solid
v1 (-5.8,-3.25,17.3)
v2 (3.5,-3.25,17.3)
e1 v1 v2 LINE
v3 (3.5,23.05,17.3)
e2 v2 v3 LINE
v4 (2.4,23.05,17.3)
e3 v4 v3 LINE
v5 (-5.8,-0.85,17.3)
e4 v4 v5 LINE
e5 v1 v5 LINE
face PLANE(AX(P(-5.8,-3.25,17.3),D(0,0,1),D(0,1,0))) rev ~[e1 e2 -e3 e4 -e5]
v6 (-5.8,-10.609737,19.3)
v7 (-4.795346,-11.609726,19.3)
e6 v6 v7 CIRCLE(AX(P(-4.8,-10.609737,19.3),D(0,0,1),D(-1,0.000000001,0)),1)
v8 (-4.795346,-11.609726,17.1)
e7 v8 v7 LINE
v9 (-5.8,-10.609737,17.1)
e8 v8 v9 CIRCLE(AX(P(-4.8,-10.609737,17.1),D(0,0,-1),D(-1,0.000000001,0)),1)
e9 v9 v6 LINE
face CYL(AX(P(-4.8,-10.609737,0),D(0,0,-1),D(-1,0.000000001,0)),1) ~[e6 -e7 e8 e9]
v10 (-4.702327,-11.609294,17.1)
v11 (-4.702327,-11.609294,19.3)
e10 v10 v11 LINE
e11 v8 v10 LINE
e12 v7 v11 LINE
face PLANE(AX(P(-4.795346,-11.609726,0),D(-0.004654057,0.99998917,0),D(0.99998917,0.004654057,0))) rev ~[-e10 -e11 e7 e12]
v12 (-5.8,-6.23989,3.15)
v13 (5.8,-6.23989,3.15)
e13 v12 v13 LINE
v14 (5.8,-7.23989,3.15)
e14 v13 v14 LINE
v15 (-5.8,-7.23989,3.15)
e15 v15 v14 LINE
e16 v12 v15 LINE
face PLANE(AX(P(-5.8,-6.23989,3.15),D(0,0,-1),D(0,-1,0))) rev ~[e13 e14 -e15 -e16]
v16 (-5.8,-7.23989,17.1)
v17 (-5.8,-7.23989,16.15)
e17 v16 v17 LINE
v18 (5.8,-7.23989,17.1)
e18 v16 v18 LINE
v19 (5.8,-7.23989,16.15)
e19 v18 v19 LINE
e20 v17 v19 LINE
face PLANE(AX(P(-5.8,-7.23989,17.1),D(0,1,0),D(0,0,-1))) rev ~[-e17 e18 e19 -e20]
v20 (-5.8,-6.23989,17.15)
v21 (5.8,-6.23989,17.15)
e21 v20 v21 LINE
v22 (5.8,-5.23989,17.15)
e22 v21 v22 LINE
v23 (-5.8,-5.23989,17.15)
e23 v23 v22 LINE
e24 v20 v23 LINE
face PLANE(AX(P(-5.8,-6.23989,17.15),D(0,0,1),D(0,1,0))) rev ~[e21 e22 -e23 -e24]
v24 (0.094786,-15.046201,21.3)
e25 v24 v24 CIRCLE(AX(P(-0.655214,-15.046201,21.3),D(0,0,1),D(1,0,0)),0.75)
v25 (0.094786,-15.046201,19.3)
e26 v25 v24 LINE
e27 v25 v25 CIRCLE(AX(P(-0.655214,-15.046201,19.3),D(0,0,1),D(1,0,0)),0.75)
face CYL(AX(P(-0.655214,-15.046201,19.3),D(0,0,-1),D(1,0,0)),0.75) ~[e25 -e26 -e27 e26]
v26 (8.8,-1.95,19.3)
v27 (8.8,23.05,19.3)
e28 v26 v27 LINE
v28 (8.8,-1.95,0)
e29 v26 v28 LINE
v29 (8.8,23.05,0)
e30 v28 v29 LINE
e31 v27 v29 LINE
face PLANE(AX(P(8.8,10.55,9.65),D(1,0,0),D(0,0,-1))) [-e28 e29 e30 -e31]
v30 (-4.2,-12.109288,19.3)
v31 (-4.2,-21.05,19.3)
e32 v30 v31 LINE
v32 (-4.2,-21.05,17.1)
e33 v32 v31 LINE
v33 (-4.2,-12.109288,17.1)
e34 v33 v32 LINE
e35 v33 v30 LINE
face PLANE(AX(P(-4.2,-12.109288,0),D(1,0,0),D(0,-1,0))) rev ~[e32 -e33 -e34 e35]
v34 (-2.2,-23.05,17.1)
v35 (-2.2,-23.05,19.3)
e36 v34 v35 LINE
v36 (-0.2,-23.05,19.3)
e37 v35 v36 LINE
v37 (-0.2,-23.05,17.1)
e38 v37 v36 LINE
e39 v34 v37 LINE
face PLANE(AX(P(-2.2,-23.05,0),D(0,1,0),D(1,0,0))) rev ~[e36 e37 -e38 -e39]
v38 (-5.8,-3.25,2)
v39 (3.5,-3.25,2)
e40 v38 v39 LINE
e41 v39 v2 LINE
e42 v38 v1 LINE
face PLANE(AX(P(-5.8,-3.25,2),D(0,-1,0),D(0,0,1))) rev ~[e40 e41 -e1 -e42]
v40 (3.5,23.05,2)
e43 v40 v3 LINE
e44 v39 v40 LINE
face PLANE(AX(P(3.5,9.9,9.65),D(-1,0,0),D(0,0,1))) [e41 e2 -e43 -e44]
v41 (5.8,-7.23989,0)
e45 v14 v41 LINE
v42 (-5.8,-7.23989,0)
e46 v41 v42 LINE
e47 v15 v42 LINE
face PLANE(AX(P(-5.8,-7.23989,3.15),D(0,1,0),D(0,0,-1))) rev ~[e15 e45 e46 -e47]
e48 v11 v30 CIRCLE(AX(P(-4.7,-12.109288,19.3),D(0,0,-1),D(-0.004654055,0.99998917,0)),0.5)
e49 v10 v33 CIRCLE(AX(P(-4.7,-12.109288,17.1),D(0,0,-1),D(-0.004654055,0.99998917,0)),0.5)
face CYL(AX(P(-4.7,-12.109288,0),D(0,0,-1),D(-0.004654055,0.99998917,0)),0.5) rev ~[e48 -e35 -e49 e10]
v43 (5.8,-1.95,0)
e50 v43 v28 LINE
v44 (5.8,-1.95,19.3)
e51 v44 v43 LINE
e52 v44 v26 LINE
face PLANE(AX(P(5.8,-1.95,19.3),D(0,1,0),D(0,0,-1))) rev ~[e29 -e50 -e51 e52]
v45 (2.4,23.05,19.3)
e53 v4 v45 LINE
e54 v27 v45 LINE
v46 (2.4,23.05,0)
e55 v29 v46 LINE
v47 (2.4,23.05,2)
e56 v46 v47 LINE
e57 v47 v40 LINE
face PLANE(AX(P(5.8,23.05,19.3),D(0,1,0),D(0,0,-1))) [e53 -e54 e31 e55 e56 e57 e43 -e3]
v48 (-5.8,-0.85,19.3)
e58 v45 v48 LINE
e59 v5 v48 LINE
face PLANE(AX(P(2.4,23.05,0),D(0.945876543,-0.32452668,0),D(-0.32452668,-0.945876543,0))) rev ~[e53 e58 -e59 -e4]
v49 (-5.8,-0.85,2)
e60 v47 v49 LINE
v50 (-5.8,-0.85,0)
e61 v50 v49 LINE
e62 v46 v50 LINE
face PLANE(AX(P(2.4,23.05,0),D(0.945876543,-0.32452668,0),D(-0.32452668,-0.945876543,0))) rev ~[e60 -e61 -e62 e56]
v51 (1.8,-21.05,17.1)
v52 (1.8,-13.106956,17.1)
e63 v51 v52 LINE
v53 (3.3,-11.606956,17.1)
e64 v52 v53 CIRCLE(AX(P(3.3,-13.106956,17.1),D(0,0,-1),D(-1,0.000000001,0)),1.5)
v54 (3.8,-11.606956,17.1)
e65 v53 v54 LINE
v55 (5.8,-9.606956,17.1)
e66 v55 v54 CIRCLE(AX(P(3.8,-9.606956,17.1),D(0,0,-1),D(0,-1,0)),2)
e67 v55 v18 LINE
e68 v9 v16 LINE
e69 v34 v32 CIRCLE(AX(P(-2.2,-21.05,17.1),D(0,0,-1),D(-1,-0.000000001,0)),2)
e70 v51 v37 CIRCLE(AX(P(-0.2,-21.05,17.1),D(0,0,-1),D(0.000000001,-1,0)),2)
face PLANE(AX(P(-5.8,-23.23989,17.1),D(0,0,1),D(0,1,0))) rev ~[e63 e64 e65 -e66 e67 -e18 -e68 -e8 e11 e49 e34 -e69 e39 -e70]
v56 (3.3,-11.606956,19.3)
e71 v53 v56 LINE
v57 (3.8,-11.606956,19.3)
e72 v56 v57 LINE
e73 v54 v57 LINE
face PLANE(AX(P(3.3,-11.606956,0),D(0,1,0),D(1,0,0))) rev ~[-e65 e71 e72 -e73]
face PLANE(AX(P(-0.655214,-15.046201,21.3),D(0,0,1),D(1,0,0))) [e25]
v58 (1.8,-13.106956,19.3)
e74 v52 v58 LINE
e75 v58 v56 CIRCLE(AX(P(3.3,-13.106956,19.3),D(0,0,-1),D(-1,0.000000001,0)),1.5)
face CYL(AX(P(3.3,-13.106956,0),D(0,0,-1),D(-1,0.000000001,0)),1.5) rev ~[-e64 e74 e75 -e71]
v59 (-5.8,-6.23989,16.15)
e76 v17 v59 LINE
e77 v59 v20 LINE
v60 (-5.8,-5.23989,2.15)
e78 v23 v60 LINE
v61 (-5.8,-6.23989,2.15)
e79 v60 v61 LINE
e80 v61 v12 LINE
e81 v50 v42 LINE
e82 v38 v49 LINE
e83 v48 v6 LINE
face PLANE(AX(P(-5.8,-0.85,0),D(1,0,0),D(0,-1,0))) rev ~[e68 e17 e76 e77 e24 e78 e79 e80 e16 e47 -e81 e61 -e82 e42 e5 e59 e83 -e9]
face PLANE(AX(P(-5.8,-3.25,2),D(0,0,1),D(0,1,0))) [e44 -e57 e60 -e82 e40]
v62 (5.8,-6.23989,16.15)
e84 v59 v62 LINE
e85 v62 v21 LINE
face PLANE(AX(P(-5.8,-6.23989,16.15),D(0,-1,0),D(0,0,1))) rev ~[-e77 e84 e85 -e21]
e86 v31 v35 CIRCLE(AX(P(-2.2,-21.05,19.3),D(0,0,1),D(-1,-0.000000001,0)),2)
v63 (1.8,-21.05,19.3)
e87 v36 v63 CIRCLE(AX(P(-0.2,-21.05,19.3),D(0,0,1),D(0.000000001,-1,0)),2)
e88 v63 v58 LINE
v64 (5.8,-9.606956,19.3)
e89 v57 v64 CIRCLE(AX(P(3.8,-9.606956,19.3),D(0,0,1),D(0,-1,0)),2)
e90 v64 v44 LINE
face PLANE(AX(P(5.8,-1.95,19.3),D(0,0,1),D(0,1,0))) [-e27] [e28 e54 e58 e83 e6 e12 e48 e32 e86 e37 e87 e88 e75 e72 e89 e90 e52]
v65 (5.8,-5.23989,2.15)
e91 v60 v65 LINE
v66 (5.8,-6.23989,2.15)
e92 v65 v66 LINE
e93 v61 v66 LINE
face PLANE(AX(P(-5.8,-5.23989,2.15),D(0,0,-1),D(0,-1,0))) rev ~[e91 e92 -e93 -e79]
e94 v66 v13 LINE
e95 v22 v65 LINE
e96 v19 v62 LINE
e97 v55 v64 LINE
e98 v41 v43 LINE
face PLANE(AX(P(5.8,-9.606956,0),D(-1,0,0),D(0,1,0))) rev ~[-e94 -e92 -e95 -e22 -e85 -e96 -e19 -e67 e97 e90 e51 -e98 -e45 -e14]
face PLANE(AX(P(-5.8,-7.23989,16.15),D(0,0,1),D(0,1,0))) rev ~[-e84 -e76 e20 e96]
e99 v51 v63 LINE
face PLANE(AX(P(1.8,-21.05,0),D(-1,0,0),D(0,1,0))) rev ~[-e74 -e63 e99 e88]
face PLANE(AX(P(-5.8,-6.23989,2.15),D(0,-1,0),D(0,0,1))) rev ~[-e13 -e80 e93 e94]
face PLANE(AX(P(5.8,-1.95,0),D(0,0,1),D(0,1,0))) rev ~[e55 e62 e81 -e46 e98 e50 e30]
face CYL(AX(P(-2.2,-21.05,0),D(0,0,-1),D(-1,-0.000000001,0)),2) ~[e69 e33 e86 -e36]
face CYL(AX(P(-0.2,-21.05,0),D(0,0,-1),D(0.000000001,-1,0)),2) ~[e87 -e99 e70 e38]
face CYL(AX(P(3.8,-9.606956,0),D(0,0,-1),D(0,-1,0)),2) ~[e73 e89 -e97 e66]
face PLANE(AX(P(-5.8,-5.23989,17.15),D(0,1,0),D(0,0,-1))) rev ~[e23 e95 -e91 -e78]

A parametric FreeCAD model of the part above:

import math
import FreeCAD as App
import Part
import Sketcher

V = App.Vector


def add_polygon(sketch, points):
    """Adds a closed chain of lines whose ends are joined by coincident constraints."""
    first, n = sketch.GeometryCount, len(points)
    for a, b in zip(points, points[1:] + points[:1]):
        sketch.addGeometry(Part.LineSegment(App.Vector(*a, 0), App.Vector(*b, 0)), False)
    for i in range(n):
        sketch.addConstraint(Sketcher.Constraint("Coincident", first + i, 2, first + (i + 1) % n, 1))

doc = App.newDocument("Part")
params = doc.addObject("Spreadsheet::Sheet", "Params")
for row, (alias, value) in enumerate([
    ("sketch1_radius", "1 mm"),
    ("sketch1_radius2", "2 mm"),
    ("sketch1_radius3", "0.5 mm"),
    ("sketch1_radius4", "1.5 mm"),
    ("sketch1_width", "2 mm"),
    ("pad1_length", "19.3 mm"),
    ("sketch2_width", "26.3 mm"),
    ("sketch2_height", "15.3 mm"),
    ("pocket1_length", "9.3 mm"),
    ("sketch3_width", "1 mm"),
    ("sketch3_width2", "16 mm"),
    ("sketch3_height", "15 mm"),
    ("sketch3_height2", "3.2 mm"),
    ("sketch3_height3", "17.15 mm"),
    ("pocket2_length", "12.3 mm"),
    ("sketch4_diameter", "1.5 mm"),
    ("pad2_length", "2 mm"),
    ("sketch5_width", "25 mm"),
    ("sketch5_height", "19.3 mm"),
    ("pad3_length", "3 mm"),
], start=1):
    params.set(f"A{row}", alias)
    params.set(f"B{row}", "=" + value)
    params.setAlias(f"B{row}", alias)

body = doc.addObject("PartDesign::Body", "Body")

# Sketch on XY plane
sketch1 = body.newObject("Sketcher::SketchObject", "Sketch")
sketch1.AttachmentSupport = (doc.getObject("XY_Plane"), [""])
sketch1.MapMode = "FlatFace"
sketch1.addGeometry(Part.LineSegment(V(5.8, 23.05, 0), V(2.4, 23.05, 0)), False)
sketch1.addGeometry(Part.LineSegment(V(2.4, 23.05, 0), V(-5.8, -0.85, 0)), False)
sketch1.addGeometry(Part.LineSegment(V(-5.8, -0.85, 0), V(-5.8, -10.609737, 0)), False)
sketch1.addGeometry(Part.ArcOfCircle(Part.Circle(V(-4.8, -10.609737, 0), V(0, 0, 1), 1), math.radians(180), math.radians(270.266659)), False)
sketch1.addGeometry(Part.LineSegment(V(-4.795346, -11.609726, 0), V(-4.702327, -11.609294, 0)), False)
sketch1.addGeometry(Part.ArcOfCircle(Part.Circle(V(-4.7, -12.109288, 0), V(0, 0, 1), 0.5), math.radians(0), math.radians(90.266659)), False)
sketch1.addGeometry(Part.LineSegment(V(-4.2, -12.109288, 0), V(-4.2, -21.05, 0)), False)
sketch1.addGeometry(Part.ArcOfCircle(Part.Circle(V(-2.2, -21.05, 0), V(0, 0, 1), 2), math.radians(-180), math.radians(-90)), False)
sketch1.addGeometry(Part.LineSegment(V(-2.2, -23.05, 0), V(-0.2, -23.05, 0)), False)
sketch1.addGeometry(Part.ArcOfCircle(Part.Circle(V(-0.2, -21.05, 0), V(0, 0, 1), 2), math.radians(-90), math.radians(0)), False)
sketch1.addGeometry(Part.LineSegment(V(1.8, -21.05, 0), V(1.8, -13.106956, 0)), False)
sketch1.addGeometry(Part.ArcOfCircle(Part.Circle(V(3.3, -13.106956, 0), V(0, 0, 1), 1.5), math.radians(90), math.radians(180)), False)
sketch1.addGeometry(Part.LineSegment(V(3.3, -11.606956, 0), V(3.8, -11.606956, 0)), False)
sketch1.addGeometry(Part.ArcOfCircle(Part.Circle(V(3.8, -9.606956, 0), V(0, 0, 1), 2), math.radians(-90), math.radians(0)), False)
sketch1.addGeometry(Part.LineSegment(V(5.8, -9.606956, 0), V(5.8, 23.05, 0)), False)
sketch1.addConstraint(Sketcher.Constraint("Coincident", 0, 2, 1, 1))
sketch1.addConstraint(Sketcher.Constraint("Coincident", 1, 2, 2, 1))
sketch1.addConstraint(Sketcher.Constraint("Tangent", 2, 2, 3, 1))
sketch1.addConstraint(Sketcher.Constraint("Tangent", 3, 2, 4, 1))
sketch1.addConstraint(Sketcher.Constraint("Tangent", 4, 2, 5, 2))
sketch1.addConstraint(Sketcher.Constraint("Tangent", 5, 1, 6, 1))
sketch1.addConstraint(Sketcher.Constraint("Tangent", 6, 2, 7, 1))
sketch1.addConstraint(Sketcher.Constraint("Tangent", 7, 2, 8, 1))
sketch1.addConstraint(Sketcher.Constraint("Tangent", 8, 2, 9, 1))
sketch1.addConstraint(Sketcher.Constraint("Tangent", 9, 2, 10, 1))
sketch1.addConstraint(Sketcher.Constraint("Tangent", 10, 2, 11, 2))
sketch1.addConstraint(Sketcher.Constraint("Tangent", 11, 1, 12, 1))
sketch1.addConstraint(Sketcher.Constraint("Tangent", 12, 2, 13, 1))
sketch1.addConstraint(Sketcher.Constraint("Tangent", 13, 2, 14, 1))
sketch1.addConstraint(Sketcher.Constraint("Coincident", 14, 2, 0, 1))
sketch1.addConstraint(Sketcher.Constraint("Horizontal", 0))
sketch1.addConstraint(Sketcher.Constraint("Vertical", 2))
sketch1.addConstraint(Sketcher.Constraint("Vertical", 6))
sketch1.addConstraint(Sketcher.Constraint("Horizontal", 8))
sketch1.addConstraint(Sketcher.Constraint("Vertical", 10))
sketch1.addConstraint(Sketcher.Constraint("Horizontal", 12))
sketch1.addConstraint(Sketcher.Constraint("Vertical", 14))
sketch1.addConstraint(Sketcher.Constraint("Equal", 7, 9))
sketch1.addConstraint(Sketcher.Constraint("Equal", 9, 13))
sketch1.addConstraint(Sketcher.Constraint("Radius", 3, 1.0))
sketch1.addConstraint(Sketcher.Constraint("Radius", 7, 2.0))
sketch1.addConstraint(Sketcher.Constraint("Radius", 5, 0.5))
sketch1.addConstraint(Sketcher.Constraint("Radius", 11, 1.5))
sketch1.addConstraint(Sketcher.Constraint("DistanceX", 8, 1, 8, 2, 2.0))
sketch1.addConstraint(Sketcher.Constraint("DistanceX", 0, 2, 0, 1, 3.4))
sketch1.addConstraint(Sketcher.Constraint("DistanceX", 12, 1, 12, 2, 0.5))
sketch1.addConstraint(Sketcher.Constraint("DistanceX", 3, 3, -1, 1, 4.8))
sketch1.addConstraint(Sketcher.Constraint("DistanceX", 5, 3, -1, 1, 4.7))
sketch1.addConstraint(Sketcher.Constraint("DistanceY", 9, 3, 0, 2, 44.1))
sketch1.addConstraint(Sketcher.Constraint("DistanceY", 7, 3, 1, 2, 20.2))
sketch1.addConstraint(Sketcher.Constraint("DistanceY", 7, 3, -1, 1, 21.05))
sketch1.addConstraint(Sketcher.Constraint("DistanceY", 6, 2, 6, 1, 8.940712))
sketch1.addConstraint(Sketcher.Constraint("Distance", 4, 0.09302))
sketch1.addConstraint(Sketcher.Constraint("DistanceY", 10, 1, 10, 2, 7.943044))
sketch1.setExpression("Constraints[24]", "Params.sketch1_radius")
sketch1.setExpression("Constraints[25]", "Params.sketch1_radius2")
sketch1.setExpression("Constraints[26]", "Params.sketch1_radius3")
sketch1.setExpression("Constraints[27]", "Params.sketch1_radius4")
sketch1.setExpression("Constraints[28]", "Params.sketch1_width")
pad1 = body.newObject("PartDesign::Pad", "Pad")
pad1.Profile = sketch1
pad1.setExpression("Length", "Params.pad1_length")

# Sketch on YZ plane
sketch2 = body.newObject("Sketcher::SketchObject", "Sketch001")
sketch2.AttachmentSupport = (doc.getObject("YZ_Plane"), [""])
sketch2.MapMode = "FlatFace"
sketch2.AttachmentOffset = App.Placement(V(0, 0, -5.8), App.Rotation())
add_polygon(sketch2, [(23.05, 2), (-3.25, 2), (-3.25, 17.3), (23.05, 17.3)])  # lines 0-3
sketch2.addConstraint(Sketcher.Constraint("Horizontal", 0))
sketch2.addConstraint(Sketcher.Constraint("Vertical", 1))
sketch2.addConstraint(Sketcher.Constraint("Horizontal", 2))
sketch2.addConstraint(Sketcher.Constraint("Vertical", 3))
sketch2.addConstraint(Sketcher.Constraint("DistanceX", 0, 2, 0, 1, 26.3))
sketch2.addConstraint(Sketcher.Constraint("DistanceY", 1, 1, 1, 2, 15.3))
sketch2.addConstraint(Sketcher.Constraint("DistanceY", -1, 1, 0, 2, 2.0))
sketch2.addConstraint(Sketcher.Constraint("DistanceX", 0, 2, -1, 1, 3.25))
sketch2.setExpression("Constraints[8]", "Params.sketch2_width")
sketch2.setExpression("Constraints[9]", "Params.sketch2_height")
pocket1 = body.newObject("PartDesign::Pocket", "Pocket")
pocket1.Profile = sketch2
pocket1.setExpression("Length", "Params.pocket1_length")
pocket1.Reversed = True

# Sketch on YZ plane
sketch3 = body.newObject("Sketcher::SketchObject", "Sketch002")
sketch3.AttachmentSupport = (doc.getObject("YZ_Plane"), [""])
sketch3.MapMode = "FlatFace"
sketch3.AttachmentOffset = App.Placement(V(0, 0, -5.8), App.Rotation())
add_polygon(sketch3, [(-5.23989, 2.15), (-6.23989, 2.15), (-6.23989, 3.15), (-7.23989, 3.15), (-7.23989, -0.05), (-23.23989, -0.05), (-23.23989, 17.1), (-7.23989, 17.1), (-7.23989, 16.15), (-6.23989, 16.15), (-6.23989, 17.15), (-5.23989, 17.15)])  # lines 0-11
sketch3.addConstraint(Sketcher.Constraint("Horizontal", 0))
sketch3.addConstraint(Sketcher.Constraint("Vertical", 1))
sketch3.addConstraint(Sketcher.Constraint("Horizontal", 2))
sketch3.addConstraint(Sketcher.Constraint("Vertical", 3))
sketch3.addConstraint(Sketcher.Constraint("Horizontal", 4))
sketch3.addConstraint(Sketcher.Constraint("Vertical", 5))
sketch3.addConstraint(Sketcher.Constraint("Horizontal", 6))
sketch3.addConstraint(Sketcher.Constraint("Vertical", 7))
sketch3.addConstraint(Sketcher.Constraint("Horizontal", 8))
sketch3.addConstraint(Sketcher.Constraint("Vertical", 9))
sketch3.addConstraint(Sketcher.Constraint("Horizontal", 10))
sketch3.addConstraint(Sketcher.Constraint("Vertical", 11))
sketch3.addConstraint(Sketcher.Constraint("Vertical", 3, 2, 6, 2))
sketch3.addConstraint(Sketcher.Constraint("Vertical", 1, 2, 8, 2))
sketch3.addConstraint(Sketcher.Constraint("Equal", 0, 2))
sketch3.addConstraint(Sketcher.Constraint("Equal", 10, 1))
sketch3.addConstraint(Sketcher.Constraint("Equal", 1, 9))
sketch3.addConstraint(Sketcher.Constraint("DistanceX", 0, 2, 0, 1, 1.0))
sketch3.addConstraint(Sketcher.Constraint("DistanceX", 4, 2, 4, 1, 16.0))
sketch3.addConstraint(Sketcher.Constraint("DistanceY", 11, 2, 11, 1, 15.0))
sketch3.addConstraint(Sketcher.Constraint("DistanceY", 3, 2, 3, 1, 3.2))
sketch3.addConstraint(Sketcher.Constraint("DistanceY", 5, 1, 5, 2, 17.15))
sketch3.addConstraint(Sketcher.Constraint("DistanceY", -1, 1, 5, 2, 17.1))
sketch3.addConstraint(Sketcher.Constraint("DistanceX", 0, 2, -1, 1, 6.23989))
sketch3.setExpression("Constraints[29]", "Params.sketch3_width")
sketch3.setExpression("Constraints[30]", "Params.sketch3_width2")
sketch3.setExpression("Constraints[31]", "Params.sketch3_height")
sketch3.setExpression("Constraints[32]", "Params.sketch3_height2")
sketch3.setExpression("Constraints[33]", "Params.sketch3_height3")
pocket2 = body.newObject("PartDesign::Pocket", "Pocket001")
pocket2.Profile = sketch3
pocket2.setExpression("Length", "Params.pocket2_length")
pocket2.Reversed = True

# Sketch on XY plane
sketch4 = body.newObject("Sketcher::SketchObject", "Sketch003")
sketch4.AttachmentSupport = (doc.getObject("XY_Plane"), [""])
sketch4.MapMode = "FlatFace"
sketch4.AttachmentOffset = App.Placement(V(0, 0, 19.3), App.Rotation())
sketch4.addGeometry(Part.Circle(V(-0.655214, -15.046201, 0), V(0, 0, 1), 0.75), False)
sketch4.addConstraint(Sketcher.Constraint("Diameter", 0, 1.5))
sketch4.addConstraint(Sketcher.Constraint("DistanceY", 0, 3, -1, 1, 15.046201))
sketch4.addConstraint(Sketcher.Constraint("DistanceX", 0, 3, -1, 1, 0.655214))
sketch4.setExpression("Constraints[0]", "Params.sketch4_diameter")
pad2 = body.newObject("PartDesign::Pad", "Pad001")
pad2.Profile = sketch4
pad2.setExpression("Length", "Params.pad2_length")

# Sketch on YZ plane
sketch5 = body.newObject("Sketcher::SketchObject", "Sketch004")
sketch5.AttachmentSupport = (doc.getObject("YZ_Plane"), [""])
sketch5.MapMode = "FlatFace"
sketch5.AttachmentOffset = App.Placement(V(0, 0, 5.8), App.Rotation())
add_polygon(sketch5, [(23.05, 19.3), (-1.95, 19.3), (-1.95, 0), (23.05, 0)])  # lines 0-3
sketch5.addConstraint(Sketcher.Constraint("Horizontal", 0))
sketch5.addConstraint(Sketcher.Constraint("Vertical", 1))
sketch5.addConstraint(Sketcher.Constraint("Horizontal", 2))
sketch5.addConstraint(Sketcher.Constraint("Vertical", 3))
sketch5.addConstraint(Sketcher.Constraint("PointOnObject", 1, 2, -1))
sketch5.addConstraint(Sketcher.Constraint("DistanceX", 0, 2, 0, 1, 25.0))
sketch5.addConstraint(Sketcher.Constraint("DistanceY", 1, 2, 1, 1, 19.3))
sketch5.addConstraint(Sketcher.Constraint("DistanceX", 0, 2, -1, 1, 1.95))
sketch5.setExpression("Constraints[9]", "Params.sketch5_width")
sketch5.setExpression("Constraints[10]", "Params.sketch5_height")
pad3 = body.newObject("PartDesign::Pad", "Pad002")
pad3.Profile = sketch5
pad3.setExpression("Length", "Params.pad3_length")

doc.recompute()
